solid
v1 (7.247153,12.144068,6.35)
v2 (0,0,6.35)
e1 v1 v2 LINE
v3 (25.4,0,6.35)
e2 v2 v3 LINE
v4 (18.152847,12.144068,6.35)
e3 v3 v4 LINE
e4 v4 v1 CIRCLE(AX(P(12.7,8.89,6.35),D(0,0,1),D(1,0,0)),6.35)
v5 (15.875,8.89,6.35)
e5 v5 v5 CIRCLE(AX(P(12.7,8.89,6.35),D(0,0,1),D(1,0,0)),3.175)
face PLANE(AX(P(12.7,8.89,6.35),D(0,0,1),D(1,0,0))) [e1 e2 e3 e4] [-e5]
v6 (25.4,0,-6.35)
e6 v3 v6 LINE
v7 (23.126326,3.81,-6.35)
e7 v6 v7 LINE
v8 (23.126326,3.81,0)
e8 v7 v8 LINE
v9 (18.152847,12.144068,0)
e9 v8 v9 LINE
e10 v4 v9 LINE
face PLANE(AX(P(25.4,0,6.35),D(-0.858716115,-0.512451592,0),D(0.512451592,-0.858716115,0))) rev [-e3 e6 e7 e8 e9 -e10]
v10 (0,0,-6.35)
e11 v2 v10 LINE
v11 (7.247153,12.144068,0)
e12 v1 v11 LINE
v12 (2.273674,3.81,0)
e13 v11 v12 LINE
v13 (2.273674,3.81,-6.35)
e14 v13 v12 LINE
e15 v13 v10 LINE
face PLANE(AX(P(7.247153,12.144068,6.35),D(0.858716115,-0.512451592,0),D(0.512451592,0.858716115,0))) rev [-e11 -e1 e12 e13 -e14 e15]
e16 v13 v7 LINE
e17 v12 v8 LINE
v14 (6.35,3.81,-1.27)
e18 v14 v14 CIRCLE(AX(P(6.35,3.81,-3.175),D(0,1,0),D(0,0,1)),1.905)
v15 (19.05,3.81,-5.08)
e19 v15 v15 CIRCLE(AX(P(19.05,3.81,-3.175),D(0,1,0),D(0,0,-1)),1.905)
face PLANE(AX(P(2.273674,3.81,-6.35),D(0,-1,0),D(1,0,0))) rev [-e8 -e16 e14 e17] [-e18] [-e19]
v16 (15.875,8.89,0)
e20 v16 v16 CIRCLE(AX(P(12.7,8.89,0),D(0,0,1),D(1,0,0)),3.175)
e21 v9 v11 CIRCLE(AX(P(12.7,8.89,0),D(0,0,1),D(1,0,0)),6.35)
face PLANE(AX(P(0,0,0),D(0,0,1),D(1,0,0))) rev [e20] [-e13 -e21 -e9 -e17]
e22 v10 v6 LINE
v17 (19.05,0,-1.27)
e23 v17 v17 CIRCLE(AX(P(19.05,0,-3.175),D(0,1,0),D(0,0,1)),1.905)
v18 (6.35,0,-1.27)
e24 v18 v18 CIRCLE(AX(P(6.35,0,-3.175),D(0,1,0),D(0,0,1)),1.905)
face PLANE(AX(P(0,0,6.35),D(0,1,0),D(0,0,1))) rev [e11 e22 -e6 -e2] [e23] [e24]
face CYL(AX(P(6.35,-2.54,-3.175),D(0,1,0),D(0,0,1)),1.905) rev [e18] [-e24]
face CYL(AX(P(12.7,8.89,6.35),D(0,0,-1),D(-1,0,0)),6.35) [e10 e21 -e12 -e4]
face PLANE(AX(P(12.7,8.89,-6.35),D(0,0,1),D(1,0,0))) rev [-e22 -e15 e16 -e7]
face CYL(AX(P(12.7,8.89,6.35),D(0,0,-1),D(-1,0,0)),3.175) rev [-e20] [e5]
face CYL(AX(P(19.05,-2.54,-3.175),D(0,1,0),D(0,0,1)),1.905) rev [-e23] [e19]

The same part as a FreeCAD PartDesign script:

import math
import FreeCAD as App
import Part
import Sketcher

V = App.Vector
Q = App.Units.Quantity


def add_polygon(sketch, points):
    """Adds a closed chain of lines whose ends are joined by coincident constraints."""
    first, n = sketch.GeometryCount, len(points)
    for a, b in zip(points, points[1:] + points[:1]):
        sketch.addGeometry(Part.LineSegment(App.Vector(*a, 0), App.Vector(*b, 0)), False)
    for i in range(n):
        sketch.addConstraint(Sketcher.Constraint("Coincident", first + i, 2, first + (i + 1) % n, 1))

doc = App.newDocument("Part")
params = doc.addObject("Spreadsheet::Sheet", "Params")
for row, (alias, value) in enumerate([
    ("sketch1_diameter", "0.25 in"),
    ("sketch1_width", "1 in"),
    ("sketch1_radius", "0.25 in"),
    ("pad1_length", "0.5 in"),
    ("sketch2_height", "0.45 in"),
    ("pocket1_length", "0.25 in"),
    ("sketch3_diameter", "0.15 in"),
    ("pocket2_length", "0.25 in"),
], start=1):
    params.set(f"A{row}", alias)
    params.set(f"B{row}", "=" + value)
    params.setAlias(f"B{row}", alias)

body = doc.addObject("PartDesign::Body", "Body")

sketch1 = body.newObject("Sketcher::SketchObject", "Sketch")
sketch1.AttachmentSupport = (doc.getObject("XY_Plane"), [""])
sketch1.MapMode = "FlatFace"
sketch1.addGeometry([
    Part.LineSegment(V(0, 0, 0), V(25.4, 0, 0)),
    Part.LineSegment(V(25.4, 0, 0), V(18.2, 12.1, 0)),
    Part.ArcOfCircle(Part.Circle(V(12.7, 8.9, 0), V(0, 0, 1), 6.3), math.radians(31), math.radians(149)),
    Part.LineSegment(V(7.2, 12.1, 0), V(0, 0, 0)),
    Part.Circle(V(12.7, 8.9, 0), V(0, 0, 1), 3.2),
], False)
sketch1.addConstraint([
    Sketcher.Constraint("Coincident", 0, 2, 1, 1),
    Sketcher.Constraint("Tangent", 1, 2, 2, 1),
    Sketcher.Constraint("Tangent", 2, 2, 3, 1),
    Sketcher.Constraint("Coincident", 3, 2, 0, 1),
    Sketcher.Constraint("Horizontal", 0),
    Sketcher.Constraint("Coincident", 3, 2, -1, 1),
    Sketcher.Constraint("Coincident", 4, 3, 2, 3),
    Sketcher.Constraint("Horizontal", 1, 2, 2, 2),
    Sketcher.Constraint("Diameter", 4, Q("0.25 in")),
    Sketcher.Constraint("DistanceX", 0, 1, 0, 2, Q("1 in")),
    Sketcher.Constraint("Radius", 2, Q("0.25 in")),
    Sketcher.Constraint("DistanceY", -1, 1, 2, 3, Q("0.35 in")),
])
sketch1.setExpression("Constraints[8]", "Params.sketch1_diameter")
sketch1.setExpression("Constraints[9]", "Params.sketch1_width")
sketch1.setExpression("Constraints[10]", "Params.sketch1_radius")
pad1 = body.newObject("PartDesign::Pad", "Pad")
pad1.Profile = sketch1
pad1.setExpression("Length", "Params.pad1_length")
pad1.Midplane = True

sketch2 = body.newObject("Sketcher::SketchObject", "Sketch001")
sketch2.AttachmentSupport = (doc.getObject("XY_Plane"), [""])
sketch2.MapMode = "FlatFace"
add_polygon(sketch2, [(2, 15), (2, 4), (23, 4), (23, 15)])
sketch2.addConstraint([
    Sketcher.Constraint("Vertical", 0),
    Sketcher.Constraint("Horizontal", 1),
    Sketcher.Constraint("Vertical", 2),
    Sketcher.Constraint("Horizontal", 3),
    Sketcher.Constraint("DistanceY", 0, 2, 0, 1, Q("0.45 in")),
    Sketcher.Constraint("DistanceY", -1, 1, 2, 2, Q("0.6 in")),
    Sketcher.Constraint("DistanceX", 1, 1, 1, 2, 20.852652),
    Sketcher.Constraint("DistanceX", -1, 1, 0, 2, 2.273674),
])
sketch2.setExpression("Constraints[8]", "Params.sketch2_height")
pocket1 = body.newObject("PartDesign::Pocket", "Pocket")
pocket1.Profile = sketch2
pocket1.setExpression("Length", "Params.pocket1_length")

sketch3 = body.newObject("Sketcher::SketchObject", "Sketch002")
sketch3.AttachmentSupport = (doc.getObject("XZ_Plane"), [""])
sketch3.MapMode = "FlatFace"
sketch3.AttachmentOffset = App.Placement(V(0, 0, -0.15 * 25.4), App.Rotation())
sketch3.addGeometry([
    Part.Circle(V(6.3, -3.2, 0), V(0, 0, 1), 1.9),
    Part.Circle(V(19.1, -3.2, 0), V(0, 0, 1), 1.9),
], False)
sketch3.addConstraint([
    Sketcher.Constraint("Equal", 0, 1),
    Sketcher.Constraint("Horizontal", 0, 3, 1, 3),
    Sketcher.Constraint("Diameter", 0, Q("0.15 in")),
    Sketcher.Constraint("DistanceX", 0, 3, 1, 3, Q("0.5 in")),
    Sketcher.Constraint("DistanceX", -1, 1, 0, 3, Q("0.25 in")),
    Sketcher.Constraint("DistanceY", 0, 3, -1, 1, Q("0.125 in")),
])
sketch3.setExpression("Constraints[2]", "Params.sketch3_diameter")
pocket2 = body.newObject("PartDesign::Pocket", "Pocket001")
pocket2.Profile = sketch3
pocket2.setExpression("Length", "Params.pocket2_length")
pocket2.Reversed = True

doc.recompute()
